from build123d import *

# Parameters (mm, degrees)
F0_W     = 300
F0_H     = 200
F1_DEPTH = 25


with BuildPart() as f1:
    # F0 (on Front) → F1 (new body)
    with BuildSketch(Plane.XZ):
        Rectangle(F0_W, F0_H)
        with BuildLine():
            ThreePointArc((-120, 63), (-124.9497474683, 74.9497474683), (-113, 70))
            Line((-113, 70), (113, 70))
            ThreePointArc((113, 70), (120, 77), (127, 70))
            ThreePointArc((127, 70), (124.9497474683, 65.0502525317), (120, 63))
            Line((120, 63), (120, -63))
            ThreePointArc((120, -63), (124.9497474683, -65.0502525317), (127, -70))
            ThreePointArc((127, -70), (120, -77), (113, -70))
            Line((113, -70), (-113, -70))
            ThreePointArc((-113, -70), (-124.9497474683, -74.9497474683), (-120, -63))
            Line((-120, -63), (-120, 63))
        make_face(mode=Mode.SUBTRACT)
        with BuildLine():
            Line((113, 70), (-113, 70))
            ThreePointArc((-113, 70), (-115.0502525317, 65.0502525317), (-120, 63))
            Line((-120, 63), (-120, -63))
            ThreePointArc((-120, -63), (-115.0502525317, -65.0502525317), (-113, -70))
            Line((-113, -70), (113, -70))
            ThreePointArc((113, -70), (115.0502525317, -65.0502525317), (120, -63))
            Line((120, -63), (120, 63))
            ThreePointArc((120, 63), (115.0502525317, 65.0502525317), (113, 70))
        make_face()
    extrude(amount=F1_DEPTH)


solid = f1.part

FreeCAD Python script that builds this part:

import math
import FreeCAD as App
import Part
import Sketcher

V = App.Vector
Q = App.Units.Quantity

doc = App.newDocument("Part")
params = doc.addObject("Spreadsheet::Sheet", "Params")
for row, (alias, value) in enumerate([
    ("sketch1_radius", "7 mm"),
    ("sketch1_width", "300 mm"),
    ("sketch1_height", "200 mm"),
    ("pad1_length", "25 mm"),
], start=1):
    params.set(f"A{row}", alias)
    params.set(f"B{row}", "=" + value)
    params.setAlias(f"B{row}", alias)

body = doc.addObject("PartDesign::Body", "Body")

sketch1 = body.newObject("Sketcher::SketchObject", "Sketch")
sketch1.AttachmentSupport = (doc.getObject("XZ_Plane"), [""])
sketch1.MapMode = "FlatFace"
sketch1.addGeometry([
    Part.LineSegment(V(-150, 100, 0), V(-150, -100, 0)),
    Part.LineSegment(V(-150, -100, 0), V(150, -100, 0)),
    Part.LineSegment(V(150, -100, 0), V(150, 100, 0)),
    Part.LineSegment(V(150, 100, 0), V(-150, 100, 0)),
    Part.ArcOfCircle(Part.Circle(V(-120, -70, 0), V(0, 0, 1), 7), math.radians(90), math.radians(360)),
    Part.ArcOfCircle(Part.Circle(V(-120, -70, 0), V(0, 0, 1), 7), math.radians(0), math.radians(90)),
    Part.ArcOfCircle(Part.Circle(V(120, -70, 0), V(0, 0, 1), 7), math.radians(180), math.radians(360)),
    Part.ArcOfCircle(Part.Circle(V(120, -70, 0), V(0, 0, 1), 7), math.radians(90), math.radians(180)),
    Part.ArcOfCircle(Part.Circle(V(120, -70, 0), V(0, 0, 1), 7), math.radians(0), math.radians(90)),
    Part.ArcOfCircle(Part.Circle(V(120, 70, 0), V(0, 0, 1), 7), math.radians(-90), math.radians(0)),
    Part.ArcOfCircle(Part.Circle(V(120, 70, 0), V(0, 0, 1), 7), math.radians(180), math.radians(270)),
    Part.ArcOfCircle(Part.Circle(V(120, 70, 0), V(0, 0, 1), 7), math.radians(0), math.radians(180)),
    Part.ArcOfCircle(Part.Circle(V(-120, 70, 0), V(0, 0, 1), 7), math.radians(0), math.radians(270)),
    Part.ArcOfCircle(Part.Circle(V(-120, 70, 0), V(0, 0, 1), 7), math.radians(-90), math.radians(0)),
], False)
sketch1.addConstraint([
    Sketcher.Constraint("Coincident", 0, 2, 1, 1),
    Sketcher.Constraint("Coincident", 1, 2, 2, 1),
    Sketcher.Constraint("Coincident", 2, 2, 3, 1),
    Sketcher.Constraint("Coincident", 3, 2, 0, 1),
    Sketcher.Constraint("Tangent", 4, 1, 5, 2),
    Sketcher.Constraint("Coincident", 5, 1, 4, 2),
    Sketcher.Constraint("Tangent", 6, 1, 7, 2),
    Sketcher.Constraint("Tangent", 7, 1, 8, 2),
    Sketcher.Constraint("Tangent", 8, 1, 6, 2),
    Sketcher.Constraint("Tangent", 9, 1, 10, 2),
    Sketcher.Constraint("Tangent", 10, 1, 11, 2),
    Sketcher.Constraint("Tangent", 11, 1, 9, 2),
    Sketcher.Constraint("Tangent", 12, 1, 13, 2),
    Sketcher.Constraint("Coincident", 13, 1, 12, 2),
    Sketcher.Constraint("Vertical", 0),
    Sketcher.Constraint("Horizontal", 1),
    Sketcher.Constraint("Vertical", 2),
    Sketcher.Constraint("Horizontal", 3),
    Sketcher.Constraint("Equal", 5, 6),
    Sketcher.Constraint("Equal", 8, 9),
    Sketcher.Constraint("Equal", 11, 12),
    Sketcher.Constraint("Symmetric", 4, 3, 9, 3, -1, 1),
    Sketcher.Constraint("Symmetric", 6, 3, 12, 3, -1, 1),
    Sketcher.Constraint("Symmetric", 0, 2, 2, 2, -1, 1),
    Sketcher.Constraint("Symmetric", 4, 3, 6, 3, -2),
    Sketcher.Constraint("Horizontal", 8, 3, 5, 1),
    Sketcher.Constraint("Horizontal", 5, 1, 6, 1),
    Sketcher.Constraint("Horizontal", 6, 1, 8, 1),
    Sketcher.Constraint("Horizontal", 13, 3, 10, 1),
    Sketcher.Constraint("Horizontal", 10, 1, 11, 1),
    Sketcher.Constraint("Horizontal", 11, 1, 12, 1),
    Sketcher.Constraint("Vertical", 13, 3, 4, 1),
    Sketcher.Constraint("Vertical", 11, 3, 7, 1),
    Sketcher.Constraint("Vertical", 7, 1, 9, 1),
    Sketcher.Constraint("Vertical", 4, 1, 13, 1),
    Sketcher.Constraint("Radius", 4, Q("7 mm")),
    Sketcher.Constraint("DistanceX", 1, 1, 1, 2, Q("300 mm")),
    Sketcher.Constraint("DistanceY", 0, 2, 0, 1, Q("200 mm")),
    Sketcher.Constraint("DistanceX", 4, 3, -1, 1, Q("120 mm")),
    Sketcher.Constraint("DistanceY", 4, 3, -1, 1, Q("70 mm")),
])
sketch1.setExpression("Constraints[35]", "Params.sketch1_radius")
sketch1.setExpression("Constraints[36]", "Params.sketch1_width")
sketch1.setExpression("Constraints[37]", "Params.sketch1_height")
pad1 = body.newObject("PartDesign::Pad", "Pad")
pad1.Profile = sketch1
pad1.setExpression("Length", "Params.pad1_length")

doc.recompute()
